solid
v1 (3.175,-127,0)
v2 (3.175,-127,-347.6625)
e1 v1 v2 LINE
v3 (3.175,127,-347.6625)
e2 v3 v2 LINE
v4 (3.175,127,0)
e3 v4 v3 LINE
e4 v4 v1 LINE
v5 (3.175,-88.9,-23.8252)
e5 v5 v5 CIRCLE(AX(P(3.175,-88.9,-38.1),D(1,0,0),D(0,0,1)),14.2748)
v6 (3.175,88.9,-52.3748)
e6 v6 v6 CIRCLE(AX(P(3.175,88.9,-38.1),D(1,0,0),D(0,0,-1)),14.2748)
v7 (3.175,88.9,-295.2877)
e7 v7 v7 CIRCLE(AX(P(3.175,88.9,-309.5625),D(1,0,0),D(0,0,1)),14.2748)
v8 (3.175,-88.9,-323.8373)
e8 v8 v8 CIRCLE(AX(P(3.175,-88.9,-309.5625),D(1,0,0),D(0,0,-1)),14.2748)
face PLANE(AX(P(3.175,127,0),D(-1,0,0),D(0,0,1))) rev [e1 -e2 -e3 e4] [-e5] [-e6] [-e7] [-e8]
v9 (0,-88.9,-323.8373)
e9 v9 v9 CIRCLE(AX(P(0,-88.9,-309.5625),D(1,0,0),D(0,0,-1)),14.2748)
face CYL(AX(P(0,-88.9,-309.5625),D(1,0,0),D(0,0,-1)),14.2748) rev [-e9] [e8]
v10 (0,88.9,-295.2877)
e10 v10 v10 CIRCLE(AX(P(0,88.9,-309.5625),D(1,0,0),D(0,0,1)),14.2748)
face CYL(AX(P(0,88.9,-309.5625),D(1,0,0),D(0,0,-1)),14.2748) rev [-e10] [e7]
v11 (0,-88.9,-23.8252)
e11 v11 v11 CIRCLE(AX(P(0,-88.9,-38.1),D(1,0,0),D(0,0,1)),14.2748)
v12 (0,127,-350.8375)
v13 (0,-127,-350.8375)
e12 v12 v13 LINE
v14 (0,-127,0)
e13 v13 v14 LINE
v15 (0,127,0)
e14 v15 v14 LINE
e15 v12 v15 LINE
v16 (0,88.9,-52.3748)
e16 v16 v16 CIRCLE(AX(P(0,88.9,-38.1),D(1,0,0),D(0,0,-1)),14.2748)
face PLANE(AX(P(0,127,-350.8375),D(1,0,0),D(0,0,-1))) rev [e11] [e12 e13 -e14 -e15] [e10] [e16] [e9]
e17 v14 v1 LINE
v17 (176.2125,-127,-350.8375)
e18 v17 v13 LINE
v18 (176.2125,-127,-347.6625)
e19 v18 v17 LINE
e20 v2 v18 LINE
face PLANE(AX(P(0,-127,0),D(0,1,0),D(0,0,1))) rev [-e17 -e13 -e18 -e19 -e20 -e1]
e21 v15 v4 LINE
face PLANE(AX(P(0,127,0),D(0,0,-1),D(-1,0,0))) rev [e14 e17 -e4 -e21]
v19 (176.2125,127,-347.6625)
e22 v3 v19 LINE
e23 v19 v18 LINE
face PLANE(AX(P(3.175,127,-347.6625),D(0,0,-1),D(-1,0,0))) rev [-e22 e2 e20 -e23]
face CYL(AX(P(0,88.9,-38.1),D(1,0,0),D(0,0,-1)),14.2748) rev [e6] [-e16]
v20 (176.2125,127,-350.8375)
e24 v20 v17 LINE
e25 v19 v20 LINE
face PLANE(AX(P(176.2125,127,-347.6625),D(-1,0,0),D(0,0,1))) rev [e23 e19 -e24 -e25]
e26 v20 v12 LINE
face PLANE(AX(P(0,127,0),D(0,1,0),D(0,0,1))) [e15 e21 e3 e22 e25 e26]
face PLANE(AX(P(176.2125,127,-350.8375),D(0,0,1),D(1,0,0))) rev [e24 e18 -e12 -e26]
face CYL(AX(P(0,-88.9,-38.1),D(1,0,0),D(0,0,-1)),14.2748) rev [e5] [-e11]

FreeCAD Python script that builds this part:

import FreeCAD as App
import Part
import Sketcher

V = App.Vector
Q = App.Units.Quantity


def add_polygon(sketch, points):
    """Adds a closed chain of lines whose ends are joined by coincident constraints."""
    first, n = sketch.GeometryCount, len(points)
    for a, b in zip(points, points[1:] + points[:1]):
        sketch.addGeometry(Part.LineSegment(App.Vector(*a, 0), App.Vector(*b, 0)), False)
    for i in range(n):
        sketch.addConstraint(Sketcher.Constraint("Coincident", first + i, 2, first + (i + 1) % n, 1))

doc = App.newDocument("Part")
body = doc.addObject("PartDesign::Body", "Body")

sketch1 = body.newObject("Sketcher::SketchObject", "Sketch")
sketch1.AttachmentSupport = (doc.getObject("XZ_Plane"), [""])
sketch1.MapMode = "FlatFace"
add_polygon(sketch1, [(0, 0), (3.175, 0), (3.175, -347.6625), (176.2125, -347.6625), (176.2125, -350.8375), (0, -350.8375)])
sketch1.addConstraint([
    Sketcher.Constraint("Horizontal", 0),
    Sketcher.Constraint("Vertical", 1),
    Sketcher.Constraint("Horizontal", 2),
    Sketcher.Constraint("Vertical", 3),
    Sketcher.Constraint("Horizontal", 4),
    Sketcher.Constraint("Vertical", 5),
    Sketcher.Constraint("Coincident", 5, 2, -1, 1),
    Sketcher.Constraint("Equal", 0, 3),
    Sketcher.Constraint("DistanceX", 0, 1, 0, 2, Q("0.125 in")),
    Sketcher.Constraint("DistanceX", 2, 1, 2, 2, Q("6.8125 in")),
    Sketcher.Constraint("DistanceY", 1, 2, 1, 1, Q("13.6875 in")),
])
pad1 = body.newObject("PartDesign::Pad", "Pad")
pad1.Profile = sketch1
pad1.Length = Q("10 in")
pad1.Midplane = True

sketch2 = body.newObject("Sketcher::SketchObject", "Sketch001")
sketch2.AttachmentSupport = (doc.getObject("YZ_Plane"), [""])
sketch2.MapMode = "FlatFace"
sketch2.AttachmentOffset = App.Placement(V(0, 0, 0.125 * 25.4), App.Rotation())
sketch2.addGeometry([
    Part.Circle(V(-88.9, -309.5625, 0), V(0, 0, 1), 14.2748),
    Part.Circle(V(88.9, -309.5625, 0), V(0, 0, 1), 14.2748),
    Part.Circle(V(-88.9, -38.1, 0), V(0, 0, 1), 14.2748),
    Part.Circle(V(88.9, -38.1, 0), V(0, 0, 1), 14.2748),
], False)
sketch2.addConstraint([
    Sketcher.Constraint("Equal", 0, 1),
    Sketcher.Constraint("Equal", 1, 2),
    Sketcher.Constraint("Equal", 2, 3),
    Sketcher.Constraint("Symmetric", 0, 3, 1, 3, -2),
    Sketcher.Constraint("Symmetric", 2, 3, 3, 3, -2),
    Sketcher.Constraint("Vertical", 0, 3, 2, 3),
    Sketcher.Constraint("Diameter", 0, Q("1.124 in")),
    Sketcher.Constraint("DistanceX", 0, 3, 1, 3, Q("7 in")),
    Sketcher.Constraint("DistanceY", 2, 3, -1, 1, Q("1.5 in")),
    Sketcher.Constraint("DistanceY", 0, 3, -1, 1, Q("12.1875 in")),
])
pocket1 = body.newObject("PartDesign::Pocket", "Pocket")
pocket1.Profile = sketch2
pocket1.Type = "ThroughAll"

doc.recompute()
